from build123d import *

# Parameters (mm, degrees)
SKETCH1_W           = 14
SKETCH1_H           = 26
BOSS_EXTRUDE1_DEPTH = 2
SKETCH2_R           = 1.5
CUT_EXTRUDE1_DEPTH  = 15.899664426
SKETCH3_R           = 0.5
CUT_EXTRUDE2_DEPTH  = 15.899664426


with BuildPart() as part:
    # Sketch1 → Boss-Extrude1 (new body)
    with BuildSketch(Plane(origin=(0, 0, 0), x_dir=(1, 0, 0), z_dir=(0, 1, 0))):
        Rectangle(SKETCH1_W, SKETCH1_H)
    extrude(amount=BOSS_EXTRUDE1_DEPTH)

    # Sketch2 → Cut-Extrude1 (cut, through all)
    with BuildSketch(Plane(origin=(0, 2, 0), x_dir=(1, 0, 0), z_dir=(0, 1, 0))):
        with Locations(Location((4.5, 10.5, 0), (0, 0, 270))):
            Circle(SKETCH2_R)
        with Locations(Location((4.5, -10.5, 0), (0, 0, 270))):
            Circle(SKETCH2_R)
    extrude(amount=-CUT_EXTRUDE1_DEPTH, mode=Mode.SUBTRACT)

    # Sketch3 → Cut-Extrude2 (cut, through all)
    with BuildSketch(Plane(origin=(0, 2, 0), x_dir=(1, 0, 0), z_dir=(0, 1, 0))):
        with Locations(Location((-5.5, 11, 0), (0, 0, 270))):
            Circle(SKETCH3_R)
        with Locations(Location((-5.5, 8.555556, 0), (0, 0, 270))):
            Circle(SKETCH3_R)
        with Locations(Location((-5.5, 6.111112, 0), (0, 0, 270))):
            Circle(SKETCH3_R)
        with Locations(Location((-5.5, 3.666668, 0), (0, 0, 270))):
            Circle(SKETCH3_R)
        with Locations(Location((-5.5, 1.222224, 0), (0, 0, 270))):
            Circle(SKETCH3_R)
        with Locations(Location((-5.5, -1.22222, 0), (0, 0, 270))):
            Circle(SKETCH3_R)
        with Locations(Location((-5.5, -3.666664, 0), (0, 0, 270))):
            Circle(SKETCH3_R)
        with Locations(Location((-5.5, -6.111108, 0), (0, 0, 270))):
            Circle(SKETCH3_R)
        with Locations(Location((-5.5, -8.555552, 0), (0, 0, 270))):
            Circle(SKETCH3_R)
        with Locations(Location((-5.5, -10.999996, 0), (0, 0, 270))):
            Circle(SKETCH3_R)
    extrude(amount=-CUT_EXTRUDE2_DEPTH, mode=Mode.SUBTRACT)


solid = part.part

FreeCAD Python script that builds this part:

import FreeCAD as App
import Part
import Sketcher
Q = App.Units.Quantity

doc = App.newDocument("Part")
params = doc.addObject("Spreadsheet::Sheet", "Params")
for row, (alias, value) in enumerate([
    ("sketch1_width", "14 mm"),
    ("sketch1_height", "26 mm"),
    ("pad1_length", "2 mm"),
    ("sketch2_diameter", "3 mm"),
    ("sketch3_diameter", "1 mm"),
], start=1):
    params.set(f"A{row}", alias)
    params.set(f"B{row}", "=" + value)
    params.setAlias(f"B{row}", alias)

body = doc.addObject("PartDesign::Body", "Body")

# Sketch on XZ plane
sketch1 = body.newObject("Sketcher::SketchObject", "Sketch")
sketch1.AttachmentSupport = (doc.getObject("XZ_Plane"), [""])
sketch1.MapMode = "FlatFace"
sketch1.addGeometry(Part.LineSegment(App.Vector(-7, -13, 0), App.Vector(-7, 13, 0)), False)
sketch1.addGeometry(Part.LineSegment(App.Vector(-7, 13, 0), App.Vector(7, 13, 0)), False)
sketch1.addGeometry(Part.LineSegment(App.Vector(7, 13, 0), App.Vector(7, -13, 0)), False)
sketch1.addGeometry(Part.LineSegment(App.Vector(7, -13, 0), App.Vector(-7, -13, 0)), False)
sketch1.addConstraint(Sketcher.Constraint("Coincident", 0, 2, 1, 1))
sketch1.addConstraint(Sketcher.Constraint("Coincident", 1, 2, 2, 1))
sketch1.addConstraint(Sketcher.Constraint("Coincident", 2, 2, 3, 1))
sketch1.addConstraint(Sketcher.Constraint("Coincident", 3, 2, 0, 1))
sketch1.addConstraint(Sketcher.Constraint("Vertical", 0))
sketch1.addConstraint(Sketcher.Constraint("Horizontal", 1))
sketch1.addConstraint(Sketcher.Constraint("Vertical", 2))
sketch1.addConstraint(Sketcher.Constraint("Horizontal", 3))
sketch1.addConstraint(Sketcher.Constraint("Symmetric", 0, 2, 2, 2, -1, 1))
sketch1.addConstraint(Sketcher.Constraint("DistanceX", 1, 1, 1, 2, Q("14 mm")))
sketch1.addConstraint(Sketcher.Constraint("DistanceY", 0, 1, 0, 2, Q("26 mm")))
sketch1.setExpression("Constraints[9]", "Params.sketch1_width")
sketch1.setExpression("Constraints[10]", "Params.sketch1_height")
pad1 = body.newObject("PartDesign::Pad", "Pad")
pad1.Profile = sketch1
pad1.setExpression("Length", "Params.pad1_length")
pad1.Reversed = True

# Sketch on XZ plane
sketch2 = body.newObject("Sketcher::SketchObject", "Sketch001")
sketch2.AttachmentSupport = (doc.getObject("XZ_Plane"), [""])
sketch2.MapMode = "FlatFace"
sketch2.AttachmentOffset = App.Placement(App.Vector(0, 0, -2), App.Rotation())
sketch2.addGeometry(Part.Circle(App.Vector(4.5, -10.5, 0), App.Vector(0, 0, 1), 1.5), False)
sketch2.addGeometry(Part.Circle(App.Vector(4.5, 10.5, 0), App.Vector(0, 0, 1), 1.5), False)
sketch2.addConstraint(Sketcher.Constraint("Equal", 0, 1))
sketch2.addConstraint(Sketcher.Constraint("Symmetric", 0, 3, 1, 3, -1))
sketch2.addConstraint(Sketcher.Constraint("Diameter", 0, Q("3 mm")))
sketch2.addConstraint(Sketcher.Constraint("DistanceY", 0, 3, 1, 3, Q("21 mm")))
sketch2.addConstraint(Sketcher.Constraint("DistanceX", -1, 1, 0, 3, Q("4.5 mm")))
sketch2.setExpression("Constraints[2]", "Params.sketch2_diameter")
pocket1 = body.newObject("PartDesign::Pocket", "Pocket")
pocket1.Profile = sketch2
pocket1.Type = "ThroughAll"
pocket1.Reversed = True

# Sketch on XZ plane
sketch3 = body.newObject("Sketcher::SketchObject", "Sketch002")
sketch3.AttachmentSupport = (doc.getObject("XZ_Plane"), [""])
sketch3.MapMode = "FlatFace"
sketch3.AttachmentOffset = App.Placement(App.Vector(0, 0, -2), App.Rotation())
sketch3.addGeometry(Part.Circle(App.Vector(-5.5, -11, 0), App.Vector(0, 0, 1), 0.5), False)
sketch3.addGeometry(Part.Circle(App.Vector(-5.5, -8.6, 0), App.Vector(0, 0, 1), 0.5), False)
sketch3.addGeometry(Part.Circle(App.Vector(-5.5, -6.1, 0), App.Vector(0, 0, 1), 0.5), False)
sketch3.addGeometry(Part.Circle(App.Vector(-5.5, -3.7, 0), App.Vector(0, 0, 1), 0.5), False)
sketch3.addGeometry(Part.Circle(App.Vector(-5.5, -1.2, 0), App.Vector(0, 0, 1), 0.5), False)
sketch3.addGeometry(Part.Circle(App.Vector(-5.5, 1.2, 0), App.Vector(0, 0, 1), 0.5), False)
sketch3.addGeometry(Part.Circle(App.Vector(-5.5, 3.7, 0), App.Vector(0, 0, 1), 0.5), False)
sketch3.addGeometry(Part.Circle(App.Vector(-5.5, 6.1, 0), App.Vector(0, 0, 1), 0.5), False)
sketch3.addGeometry(Part.Circle(App.Vector(-5.5, 8.6, 0), App.Vector(0, 0, 1), 0.5), False)
sketch3.addGeometry(Part.Circle(App.Vector(-5.5, 11, 0), App.Vector(0, 0, 1), 0.5), False)
sketch3.addConstraint(Sketcher.Constraint("Equal", 0, 1))
sketch3.addConstraint(Sketcher.Constraint("Equal", 1, 2))
sketch3.addConstraint(Sketcher.Constraint("Equal", 2, 3))
sketch3.addConstraint(Sketcher.Constraint("Equal", 3, 4))
sketch3.addConstraint(Sketcher.Constraint("Equal", 4, 5))
sketch3.addConstraint(Sketcher.Constraint("Equal", 5, 6))
sketch3.addConstraint(Sketcher.Constraint("Equal", 6, 7))
sketch3.addConstraint(Sketcher.Constraint("Equal", 7, 8))
sketch3.addConstraint(Sketcher.Constraint("Equal", 8, 9))
sketch3.addConstraint(Sketcher.Constraint("Symmetric", 4, 3, 5, 3, -1))
sketch3.addConstraint(Sketcher.Constraint("Symmetric", 3, 3, 6, 3, -1))
sketch3.addConstraint(Sketcher.Constraint("Symmetric", 2, 3, 7, 3, -1))
sketch3.addConstraint(Sketcher.Constraint("Symmetric", 1, 3, 8, 3, -1))
sketch3.addConstraint(Sketcher.Constraint("Symmetric", 0, 3, 9, 3, -1))
sketch3.addConstraint(Sketcher.Constraint("Vertical", 0, 3, 1, 3))
sketch3.addConstraint(Sketcher.Constraint("Vertical", 1, 3, 2, 3))
sketch3.addConstraint(Sketcher.Constraint("Vertical", 2, 3, 3, 3))
sketch3.addConstraint(Sketcher.Constraint("Vertical", 3, 3, 4, 3))
sketch3.addConstraint(Sketcher.Constraint("Diameter", 0, Q("1 mm")))
sketch3.addConstraint(Sketcher.Constraint("DistanceY", 0, 3, -1, 1, Q("11 mm")))
sketch3.addConstraint(Sketcher.Constraint("DistanceX", 0, 3, -1, 1, Q("5.5 mm")))
sketch3.addConstraint(Sketcher.Constraint("DistanceY", 3, 3, -1, 1, Q("3.666668 mm")))
sketch3.addConstraint(Sketcher.Constraint("DistanceY", -1, 1, 5, 3, Q("1.22222 mm")))
sketch3.addConstraint(Sketcher.Constraint("DistanceY", 2, 3, 4, 3, Q("4.888888 mm")))
sketch3.addConstraint(Sketcher.Constraint("DistanceY", 1, 3, 4, 3, Q("7.333332 mm")))
sketch3.setExpression("Constraints[18]", "Params.sketch3_diameter")
pocket2 = body.newObject("PartDesign::Pocket", "Pocket001")
pocket2.Profile = sketch3
pocket2.Type = "ThroughAll"
pocket2.Reversed = True

doc.recompute()
